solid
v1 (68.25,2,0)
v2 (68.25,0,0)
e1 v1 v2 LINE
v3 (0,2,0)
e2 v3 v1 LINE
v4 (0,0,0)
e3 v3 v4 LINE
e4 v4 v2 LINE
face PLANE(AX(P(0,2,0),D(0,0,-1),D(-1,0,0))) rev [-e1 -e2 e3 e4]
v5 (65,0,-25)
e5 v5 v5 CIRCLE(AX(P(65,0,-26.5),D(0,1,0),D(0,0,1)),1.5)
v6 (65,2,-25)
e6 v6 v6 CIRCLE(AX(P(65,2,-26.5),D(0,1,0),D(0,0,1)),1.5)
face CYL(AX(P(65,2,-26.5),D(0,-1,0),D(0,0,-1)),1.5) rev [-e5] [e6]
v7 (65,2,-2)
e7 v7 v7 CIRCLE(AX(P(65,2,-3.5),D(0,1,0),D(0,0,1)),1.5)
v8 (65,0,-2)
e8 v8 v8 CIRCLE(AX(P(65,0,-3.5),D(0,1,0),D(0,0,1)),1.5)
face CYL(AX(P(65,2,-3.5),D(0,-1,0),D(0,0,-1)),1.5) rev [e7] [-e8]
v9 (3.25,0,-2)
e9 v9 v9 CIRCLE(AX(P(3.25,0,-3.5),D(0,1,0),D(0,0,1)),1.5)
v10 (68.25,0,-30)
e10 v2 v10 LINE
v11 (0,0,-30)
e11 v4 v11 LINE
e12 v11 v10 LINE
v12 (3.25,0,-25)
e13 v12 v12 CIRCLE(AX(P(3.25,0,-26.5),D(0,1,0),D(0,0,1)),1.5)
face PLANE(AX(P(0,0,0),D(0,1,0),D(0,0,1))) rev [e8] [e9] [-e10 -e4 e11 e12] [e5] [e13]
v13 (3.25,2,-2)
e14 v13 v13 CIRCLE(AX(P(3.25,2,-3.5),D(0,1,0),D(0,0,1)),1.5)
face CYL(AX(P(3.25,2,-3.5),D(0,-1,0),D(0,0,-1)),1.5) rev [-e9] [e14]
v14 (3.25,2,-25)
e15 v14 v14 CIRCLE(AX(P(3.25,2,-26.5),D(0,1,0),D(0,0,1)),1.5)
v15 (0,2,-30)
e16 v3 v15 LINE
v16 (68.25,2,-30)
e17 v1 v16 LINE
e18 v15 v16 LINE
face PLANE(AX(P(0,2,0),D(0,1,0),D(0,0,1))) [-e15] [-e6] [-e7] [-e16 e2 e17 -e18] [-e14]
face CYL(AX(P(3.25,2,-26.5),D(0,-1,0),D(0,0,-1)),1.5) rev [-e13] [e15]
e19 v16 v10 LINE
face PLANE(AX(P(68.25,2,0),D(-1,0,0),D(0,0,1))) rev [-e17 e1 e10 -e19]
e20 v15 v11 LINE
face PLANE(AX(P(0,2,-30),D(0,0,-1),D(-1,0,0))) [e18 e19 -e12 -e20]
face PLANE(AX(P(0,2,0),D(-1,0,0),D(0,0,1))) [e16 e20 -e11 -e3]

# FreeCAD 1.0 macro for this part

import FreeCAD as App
import Part
import Sketcher
from FreeCAD import Vector
Q = App.Units.Quantity

doc = App.newDocument("Part")
body = doc.addObject("PartDesign::Body", "Body")

sketch1 = body.newObject("Sketcher::SketchObject", "Sketch")
sketch1.AttachmentSupport = (doc.getObject("XZ_Plane"), [""])
sketch1.MapMode = "FlatFace"
sketch1.addGeometry(Part.LineSegment(Vector(0, -30, 0), Vector(0, 0, 0)), False)
sketch1.addGeometry(Part.LineSegment(Vector(0, 0, 0), Vector(68.2, 0, 0)), False)
sketch1.addGeometry(Part.LineSegment(Vector(68.2, 0, 0), Vector(68.2, -30, 0)), False)
sketch1.addGeometry(Part.LineSegment(Vector(68.2, -30, 0), Vector(0, -30, 0)), False)
sketch1.addGeometry(Part.Circle(Vector(3.2, -3.5, 0), Vector(0, 0, 1), 1.5), False)
sketch1.addGeometry(Part.Circle(Vector(65, -3.5, 0), Vector(0, 0, 1), 1.5), False)
sketch1.addGeometry(Part.Circle(Vector(3.2, -26.5, 0), Vector(0, 0, 1), 1.5), False)
sketch1.addGeometry(Part.Circle(Vector(65, -26.5, 0), Vector(0, 0, 1), 1.5), False)
sketch1.addConstraint(Sketcher.Constraint("Coincident", 0, 2, 1, 1))
sketch1.addConstraint(Sketcher.Constraint("Coincident", 1, 2, 2, 1))
sketch1.addConstraint(Sketcher.Constraint("Coincident", 2, 2, 3, 1))
sketch1.addConstraint(Sketcher.Constraint("Coincident", 3, 2, 0, 1))
sketch1.addConstraint(Sketcher.Constraint("Vertical", 0))
sketch1.addConstraint(Sketcher.Constraint("Horizontal", 1))
sketch1.addConstraint(Sketcher.Constraint("Vertical", 2))
sketch1.addConstraint(Sketcher.Constraint("Horizontal", 3))
sketch1.addConstraint(Sketcher.Constraint("Coincident", 0, 2, -1, 1))
sketch1.addConstraint(Sketcher.Constraint("Equal", 4, 5))
sketch1.addConstraint(Sketcher.Constraint("Equal", 5, 6))
sketch1.addConstraint(Sketcher.Constraint("Equal", 6, 7))
sketch1.addConstraint(Sketcher.Constraint("Horizontal", 4, 3, 5, 3))
sketch1.addConstraint(Sketcher.Constraint("Horizontal", 6, 3, 7, 3))
sketch1.addConstraint(Sketcher.Constraint("Vertical", 4, 3, 6, 3))
sketch1.addConstraint(Sketcher.Constraint("Vertical", 5, 3, 7, 3))
sketch1.addConstraint(Sketcher.Constraint("Diameter", 4, Q("3 mm")))
sketch1.addConstraint(Sketcher.Constraint("DistanceY", 0, 1, 0, 2, Q("30 mm")))
sketch1.addConstraint(Sketcher.Constraint("DistanceX", -1, 1, 5, 3, Q("65 mm")))
sketch1.addConstraint(Sketcher.Constraint("DistanceY", 6, 3, 4, 3, Q("23 mm")))
sketch1.addConstraint(Sketcher.Constraint("DistanceX", 4, 3, 1, 2, Q("65 mm")))
sketch1.addConstraint(Sketcher.Constraint("DistanceX", 1, 1, 1, 2, Q("68.25 mm")))
sketch1.addConstraint(Sketcher.Constraint("DistanceY", 4, 3, -1, 1, Q("3.5 mm")))
pad1 = body.newObject("PartDesign::Pad", "Pad")
pad1.Profile = sketch1
pad1.Length = 2
pad1.Reversed = True

doc.recompute()
